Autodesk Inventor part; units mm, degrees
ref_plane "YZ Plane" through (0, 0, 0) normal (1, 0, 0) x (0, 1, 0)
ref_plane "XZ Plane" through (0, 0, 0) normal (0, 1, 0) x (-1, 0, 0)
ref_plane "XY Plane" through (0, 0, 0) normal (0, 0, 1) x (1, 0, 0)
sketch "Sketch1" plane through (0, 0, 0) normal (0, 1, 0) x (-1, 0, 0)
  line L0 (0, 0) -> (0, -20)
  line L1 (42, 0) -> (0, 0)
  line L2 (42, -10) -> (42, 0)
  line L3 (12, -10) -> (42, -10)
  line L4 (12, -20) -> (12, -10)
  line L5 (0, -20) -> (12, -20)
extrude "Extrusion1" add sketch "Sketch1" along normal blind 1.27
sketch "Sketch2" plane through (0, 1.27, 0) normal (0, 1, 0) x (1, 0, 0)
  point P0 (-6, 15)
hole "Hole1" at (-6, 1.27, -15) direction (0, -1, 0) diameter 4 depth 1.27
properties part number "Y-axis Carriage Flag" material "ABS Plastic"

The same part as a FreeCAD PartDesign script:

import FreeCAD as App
import Part
import Sketcher

doc = App.newDocument("Part")
body = doc.addObject("PartDesign::Body", "Body")

# Sketch on XZ plane
sketch1 = doc.addObject("Sketcher::SketchObject", "Sketch")
body.addObject(sketch1)
sketch1.AttachmentSupport = (doc.XZ_Plane, [""])
sketch1.MapMode = "FlatFace"
sketch1.addGeometry([
    Part.LineSegment(App.Vector(-42, 0, 0), App.Vector(0, 0, 0)),  # 0
    Part.LineSegment(App.Vector(0, 0, 0), App.Vector(0, -20, 0)),  # 1
    Part.LineSegment(App.Vector(0, -20, 0), App.Vector(-12, -20, 0)),  # 2
    Part.LineSegment(App.Vector(-12, -20, 0), App.Vector(-12, -10, 0)),  # 3
    Part.LineSegment(App.Vector(-12, -10, 0), App.Vector(-42, -10, 0)),  # 4
    Part.LineSegment(App.Vector(-42, -10, 0), App.Vector(-42, 0, 0)),  # 5
], False)
sketch1.addConstraint([
    Sketcher.Constraint("Coincident", 0, 2, 1, 1),
    Sketcher.Constraint("Coincident", 1, 2, 2, 1),
    Sketcher.Constraint("Coincident", 2, 2, 3, 1),
    Sketcher.Constraint("Coincident", 3, 2, 4, 1),
    Sketcher.Constraint("Coincident", 4, 2, 5, 1),
    Sketcher.Constraint("Coincident", 5, 2, 0, 1),
    Sketcher.Constraint("Horizontal", 0),
    Sketcher.Constraint("Vertical", 1),
    Sketcher.Constraint("Horizontal", 2),
    Sketcher.Constraint("Vertical", 3),
    Sketcher.Constraint("Horizontal", 4),
    Sketcher.Constraint("Vertical", 5),
    Sketcher.Constraint("Coincident", 0, 2, -1, 1),
    Sketcher.Constraint("Equal", 3, 5),
    Sketcher.Constraint("DistanceX", 0, 1, 0, 2, 42.0),
    Sketcher.Constraint("DistanceX", 2, 2, 2, 1, 12.0),
    Sketcher.Constraint("DistanceY", 1, 2, 1, 1, 20.0),
])
pad1 = doc.addObject("PartDesign::Pad", "Pad")
body.addObject(pad1)
pad1.Profile = sketch1
pad1.Length = 1.27
pad1.Reversed = True

# Sketch on XZ plane
sketch2 = doc.addObject("Sketcher::SketchObject", "Sketch001")
body.addObject(sketch2)
sketch2.AttachmentSupport = (doc.XZ_Plane, [""])
sketch2.MapMode = "FlatFace"
sketch2.AttachmentOffset = App.Placement(App.Vector(0, 0, -1.27), App.Rotation())
sketch2.addGeometry(Part.Circle(App.Vector(-6, -15, 0), App.Vector(0, 0, 1), 2), False)
sketch2.addConstraint([
    Sketcher.Constraint("Diameter", 0, 4.0),
    Sketcher.Constraint("DistanceX", 0, 3, -1, 1, 6.0),
    Sketcher.Constraint("DistanceY", 0, 3, -1, 1, 15.0),
])
doc.recompute()
hole = doc.addObject("PartDesign::Hole", "Hole")
body.addObject(hole)
hole.Profile = sketch2
hole.ThreadType = "None"
hole.Diameter = 4
hole.DepthType = "Dimension"
hole.Depth = 1.27
hole.DrillPoint = "Flat"
hole.Reversed = True

doc.recompute()
